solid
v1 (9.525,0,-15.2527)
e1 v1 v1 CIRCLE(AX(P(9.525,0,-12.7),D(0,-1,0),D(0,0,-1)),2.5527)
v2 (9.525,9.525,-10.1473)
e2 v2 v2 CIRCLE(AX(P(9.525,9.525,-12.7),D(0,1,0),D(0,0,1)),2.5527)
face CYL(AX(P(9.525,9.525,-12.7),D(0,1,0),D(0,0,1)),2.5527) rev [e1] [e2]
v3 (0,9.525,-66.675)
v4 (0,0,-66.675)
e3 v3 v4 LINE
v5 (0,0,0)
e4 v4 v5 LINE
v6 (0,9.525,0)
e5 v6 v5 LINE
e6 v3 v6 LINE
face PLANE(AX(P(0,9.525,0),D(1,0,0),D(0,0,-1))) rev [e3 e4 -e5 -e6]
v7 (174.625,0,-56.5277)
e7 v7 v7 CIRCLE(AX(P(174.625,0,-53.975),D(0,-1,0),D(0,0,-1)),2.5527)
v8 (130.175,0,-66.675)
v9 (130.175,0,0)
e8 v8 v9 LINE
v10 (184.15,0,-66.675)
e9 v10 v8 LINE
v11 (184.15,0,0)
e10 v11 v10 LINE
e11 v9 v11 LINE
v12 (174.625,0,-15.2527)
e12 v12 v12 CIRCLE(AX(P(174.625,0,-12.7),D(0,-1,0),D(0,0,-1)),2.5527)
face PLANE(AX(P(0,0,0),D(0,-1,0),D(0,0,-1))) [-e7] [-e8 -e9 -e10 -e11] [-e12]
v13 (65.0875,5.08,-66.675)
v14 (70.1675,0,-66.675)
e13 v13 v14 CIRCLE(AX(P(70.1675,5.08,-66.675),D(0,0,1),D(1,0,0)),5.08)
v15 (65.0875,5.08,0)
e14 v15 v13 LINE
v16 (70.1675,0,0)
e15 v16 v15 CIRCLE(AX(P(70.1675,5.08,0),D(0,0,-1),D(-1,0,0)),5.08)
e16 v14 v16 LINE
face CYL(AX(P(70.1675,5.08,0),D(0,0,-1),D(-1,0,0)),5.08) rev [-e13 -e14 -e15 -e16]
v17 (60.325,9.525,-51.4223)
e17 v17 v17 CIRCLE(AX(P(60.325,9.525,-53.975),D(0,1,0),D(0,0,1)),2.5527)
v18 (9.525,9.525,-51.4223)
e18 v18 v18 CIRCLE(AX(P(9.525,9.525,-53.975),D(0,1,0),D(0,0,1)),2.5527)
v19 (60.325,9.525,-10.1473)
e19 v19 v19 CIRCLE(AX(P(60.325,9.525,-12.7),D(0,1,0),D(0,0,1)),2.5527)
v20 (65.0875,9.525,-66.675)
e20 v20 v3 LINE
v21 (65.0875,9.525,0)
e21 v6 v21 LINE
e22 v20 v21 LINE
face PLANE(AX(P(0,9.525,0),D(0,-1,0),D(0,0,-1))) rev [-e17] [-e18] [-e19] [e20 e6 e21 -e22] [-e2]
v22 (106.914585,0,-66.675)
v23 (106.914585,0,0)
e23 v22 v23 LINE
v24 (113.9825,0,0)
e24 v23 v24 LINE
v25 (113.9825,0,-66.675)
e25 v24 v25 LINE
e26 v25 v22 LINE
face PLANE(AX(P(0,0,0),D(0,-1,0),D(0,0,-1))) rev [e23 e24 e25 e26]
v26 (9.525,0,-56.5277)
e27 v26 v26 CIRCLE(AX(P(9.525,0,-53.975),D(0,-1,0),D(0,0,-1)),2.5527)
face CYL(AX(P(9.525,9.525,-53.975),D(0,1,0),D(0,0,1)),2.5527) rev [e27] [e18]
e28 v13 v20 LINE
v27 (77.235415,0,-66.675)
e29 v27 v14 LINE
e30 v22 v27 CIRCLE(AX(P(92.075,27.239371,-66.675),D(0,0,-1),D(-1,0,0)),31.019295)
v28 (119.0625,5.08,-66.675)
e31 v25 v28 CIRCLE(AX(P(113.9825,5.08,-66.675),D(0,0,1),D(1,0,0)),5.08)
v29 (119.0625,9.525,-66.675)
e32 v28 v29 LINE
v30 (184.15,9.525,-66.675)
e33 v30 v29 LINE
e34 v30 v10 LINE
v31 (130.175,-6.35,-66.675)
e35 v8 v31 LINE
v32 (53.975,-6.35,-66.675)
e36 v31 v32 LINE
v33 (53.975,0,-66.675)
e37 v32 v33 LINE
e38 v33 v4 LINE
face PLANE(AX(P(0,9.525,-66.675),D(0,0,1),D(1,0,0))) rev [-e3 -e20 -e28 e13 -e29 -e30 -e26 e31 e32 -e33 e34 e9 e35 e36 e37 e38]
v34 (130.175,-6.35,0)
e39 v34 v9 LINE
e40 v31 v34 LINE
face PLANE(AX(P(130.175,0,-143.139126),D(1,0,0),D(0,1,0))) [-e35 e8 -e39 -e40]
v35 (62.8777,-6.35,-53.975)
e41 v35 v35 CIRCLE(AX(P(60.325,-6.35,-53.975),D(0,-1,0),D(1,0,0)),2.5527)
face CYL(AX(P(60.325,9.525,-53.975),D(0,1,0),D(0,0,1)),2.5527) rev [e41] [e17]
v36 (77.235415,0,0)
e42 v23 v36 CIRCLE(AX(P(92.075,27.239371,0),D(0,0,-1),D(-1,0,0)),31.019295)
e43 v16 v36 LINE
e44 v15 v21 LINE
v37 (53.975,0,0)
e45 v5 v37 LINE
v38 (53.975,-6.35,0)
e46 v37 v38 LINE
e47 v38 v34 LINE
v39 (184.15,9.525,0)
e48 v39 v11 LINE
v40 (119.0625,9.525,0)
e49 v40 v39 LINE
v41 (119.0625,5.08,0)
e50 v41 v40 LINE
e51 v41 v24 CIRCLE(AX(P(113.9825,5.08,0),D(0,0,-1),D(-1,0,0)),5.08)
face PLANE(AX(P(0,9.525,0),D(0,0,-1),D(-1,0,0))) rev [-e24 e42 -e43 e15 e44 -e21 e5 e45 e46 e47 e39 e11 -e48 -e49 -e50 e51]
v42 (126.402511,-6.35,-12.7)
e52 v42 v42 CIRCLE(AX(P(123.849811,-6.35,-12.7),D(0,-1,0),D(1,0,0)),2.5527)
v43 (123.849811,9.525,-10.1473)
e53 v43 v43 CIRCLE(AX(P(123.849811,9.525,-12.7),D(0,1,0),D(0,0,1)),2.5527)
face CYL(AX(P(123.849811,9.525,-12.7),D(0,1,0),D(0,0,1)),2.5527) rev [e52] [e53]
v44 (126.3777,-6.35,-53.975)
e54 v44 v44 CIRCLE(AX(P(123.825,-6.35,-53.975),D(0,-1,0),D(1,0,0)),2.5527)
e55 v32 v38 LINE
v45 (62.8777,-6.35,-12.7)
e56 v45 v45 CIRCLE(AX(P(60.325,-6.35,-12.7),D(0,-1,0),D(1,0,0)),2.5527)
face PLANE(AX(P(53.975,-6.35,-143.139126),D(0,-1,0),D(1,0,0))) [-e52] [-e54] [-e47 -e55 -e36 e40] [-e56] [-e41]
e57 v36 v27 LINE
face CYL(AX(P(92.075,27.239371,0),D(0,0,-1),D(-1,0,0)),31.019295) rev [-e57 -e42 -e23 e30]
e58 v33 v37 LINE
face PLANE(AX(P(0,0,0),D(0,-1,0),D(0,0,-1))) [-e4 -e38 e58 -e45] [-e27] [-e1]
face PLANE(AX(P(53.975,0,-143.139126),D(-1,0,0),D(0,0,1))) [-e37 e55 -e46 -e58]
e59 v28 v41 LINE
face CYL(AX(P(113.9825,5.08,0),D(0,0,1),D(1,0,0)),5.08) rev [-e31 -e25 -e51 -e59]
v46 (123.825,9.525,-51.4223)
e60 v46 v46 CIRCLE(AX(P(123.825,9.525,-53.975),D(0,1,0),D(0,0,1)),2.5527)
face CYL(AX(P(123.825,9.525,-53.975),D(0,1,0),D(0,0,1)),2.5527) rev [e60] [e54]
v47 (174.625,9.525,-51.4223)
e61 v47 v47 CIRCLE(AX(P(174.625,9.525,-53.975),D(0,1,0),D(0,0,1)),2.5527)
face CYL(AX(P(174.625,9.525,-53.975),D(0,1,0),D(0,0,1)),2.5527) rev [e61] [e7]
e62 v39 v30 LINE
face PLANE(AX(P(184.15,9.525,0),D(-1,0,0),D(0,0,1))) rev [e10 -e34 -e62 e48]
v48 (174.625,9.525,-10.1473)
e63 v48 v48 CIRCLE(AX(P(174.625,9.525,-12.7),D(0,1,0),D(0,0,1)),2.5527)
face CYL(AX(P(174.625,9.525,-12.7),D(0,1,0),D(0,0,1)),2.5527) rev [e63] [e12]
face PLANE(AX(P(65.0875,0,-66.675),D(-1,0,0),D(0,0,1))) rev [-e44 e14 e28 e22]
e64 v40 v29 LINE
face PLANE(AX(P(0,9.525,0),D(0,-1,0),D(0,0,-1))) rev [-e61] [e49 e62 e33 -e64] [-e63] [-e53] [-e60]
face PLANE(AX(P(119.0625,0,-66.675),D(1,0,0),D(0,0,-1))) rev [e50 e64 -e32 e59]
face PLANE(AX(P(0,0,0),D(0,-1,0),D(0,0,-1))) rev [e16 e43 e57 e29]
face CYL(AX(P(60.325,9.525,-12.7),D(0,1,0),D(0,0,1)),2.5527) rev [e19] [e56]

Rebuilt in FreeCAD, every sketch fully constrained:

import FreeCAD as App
import Part
import Sketcher
from FreeCAD import Vector
Q = App.Units.Quantity


def edges_at(feature, points):
    """Names of the edges that pass closest to the given points."""
    edges = feature.Shape.Edges
    near = lambda p: min(range(len(edges)), key=lambda i: edges[i].distToShape(Part.Vertex(*p))[0])
    return sorted({f"Edge{near(p) + 1}" for p in points})

doc = App.newDocument("Part")
body = doc.addObject("PartDesign::Body", "Body")

sketch1 = body.newObject("Sketcher::SketchObject", "Sketch")
sketch1.AttachmentSupport = (doc.getObject("XZ_Plane"), [""])
sketch1.MapMode = "FlatFace"
sketch1.addGeometry([
    Part.LineSegment(Vector(0, -67, 0), Vector(0, 0, 0)),
    Part.LineSegment(Vector(0, 0, 0), Vector(184, 0, 0)),
    Part.LineSegment(Vector(184, 0, 0), Vector(184, -67, 0)),
    Part.LineSegment(Vector(184, -67, 0), Vector(0, -67, 0)),
], False)
sketch1.addConstraint([
    Sketcher.Constraint("Coincident", 0, 2, 1, 1),
    Sketcher.Constraint("Coincident", 1, 2, 2, 1),
    Sketcher.Constraint("Coincident", 2, 2, 3, 1),
    Sketcher.Constraint("Coincident", 3, 2, 0, 1),
    Sketcher.Constraint("Vertical", 0),
    Sketcher.Constraint("Horizontal", 1),
    Sketcher.Constraint("Vertical", 2),
    Sketcher.Constraint("Horizontal", 3),
    Sketcher.Constraint("Coincident", 0, 2, -1, 1),
    Sketcher.Constraint("DistanceX", 1, 1, 1, 2, Q("7.25 in")),
    Sketcher.Constraint("DistanceY", 0, 1, 0, 2, Q("2.625 in")),
])
pad1 = body.newObject("PartDesign::Pad", "Pad")
pad1.Profile = sketch1
pad1.Length = Q("0.375 in")
pad1.Reversed = True

sketch2 = body.newObject("Sketcher::SketchObject", "Sketch001")
sketch2.AttachmentSupport = (doc.getObject("XY_Plane"), [""])
sketch2.MapMode = "FlatFace"
sketch2.addGeometry([
    Part.LineSegment(Vector(54, 0, 0), Vector(54, -6, 0)),
    Part.LineSegment(Vector(54, -6, 0), Vector(130, -6, 0)),
    Part.LineSegment(Vector(130, -6, 0), Vector(130, 0, 0)),
    Part.LineSegment(Vector(130, 0, 0), Vector(54, 0, 0)),
], False)
sketch2.addConstraint([
    Sketcher.Constraint("Coincident", 0, 2, 1, 1),
    Sketcher.Constraint("Coincident", 1, 2, 2, 1),
    Sketcher.Constraint("Coincident", 2, 2, 3, 1),
    Sketcher.Constraint("Coincident", 3, 2, 0, 1),
    Sketcher.Constraint("Vertical", 0),
    Sketcher.Constraint("Horizontal", 1),
    Sketcher.Constraint("Vertical", 2),
    Sketcher.Constraint("Horizontal", 3),
    Sketcher.Constraint("PointOnObject", 2, 2, -1),
    Sketcher.Constraint("DistanceX", 1, 1, 1, 2, Q("3 in")),
    Sketcher.Constraint("DistanceY", 0, 2, 0, 1, Q("0.25 in")),
    Sketcher.Constraint("DistanceX", -1, 1, 0, 2, Q("2.125 in")),
])
pad2 = body.newObject("PartDesign::Pad", "Pad001")
pad2.Profile = sketch2
pad2.Length = Q("2.625 in")
pad2.Reversed = True

sketch3 = body.newObject("Sketcher::SketchObject", "Sketch002")
sketch3.AttachmentSupport = (doc.getObject("XZ_Plane"), [""])
sketch3.MapMode = "FlatFace"
sketch3.AttachmentOffset = App.Placement(Vector(0, 0, -0.375 * 25.4), App.Rotation())
sketch3.addGeometry([
    Part.LineSegment(Vector(65, -67, 0), Vector(65, 0, 0)),
    Part.LineSegment(Vector(65, 0, 0), Vector(119, 0, 0)),
    Part.LineSegment(Vector(119, 0, 0), Vector(119, -67, 0)),
    Part.LineSegment(Vector(119, -67, 0), Vector(65, -67, 0)),
], False)
sketch3.addConstraint([
    Sketcher.Constraint("Coincident", 0, 2, 1, 1),
    Sketcher.Constraint("Coincident", 1, 2, 2, 1),
    Sketcher.Constraint("Coincident", 2, 2, 3, 1),
    Sketcher.Constraint("Coincident", 3, 2, 0, 1),
    Sketcher.Constraint("Vertical", 0),
    Sketcher.Constraint("Horizontal", 1),
    Sketcher.Constraint("Vertical", 2),
    Sketcher.Constraint("Horizontal", 3),
    Sketcher.Constraint("PointOnObject", 0, 2, -1),
    Sketcher.Constraint("DistanceX", 1, 1, 1, 2, Q("2.125 in")),
    Sketcher.Constraint("DistanceY", 0, 1, 0, 2, Q("2.625 in")),
    Sketcher.Constraint("DistanceX", -1, 1, 0, 2, Q("2.5625 in")),
])
pocket1 = body.newObject("PartDesign::Pocket", "Pocket")
pocket1.Profile = sketch3
pocket1.Length = Q("0.375 in")
pocket1.Reversed = True

sketch4 = body.newObject("Sketcher::SketchObject", "Sketch003")
sketch4.AttachmentSupport = (doc.getObject("XZ_Plane"), [""])
sketch4.MapMode = "FlatFace"
sketch4.AttachmentOffset = App.Placement(Vector(0, 0, -0.375 * 25.4), App.Rotation())
sketch4.addGeometry([
    Part.Circle(Vector(9.5, -54, 0), Vector(0, 0, 1), 2.6),
    Part.Circle(Vector(9.5, -12.7, 0), Vector(0, 0, 1), 2.6),
    Part.Circle(Vector(60.3, -12.7, 0), Vector(0, 0, 1), 2.6),
    Part.Circle(Vector(60.3, -54, 0), Vector(0, 0, 1), 2.6),
    Part.Circle(Vector(123.8, -54, 0), Vector(0, 0, 1), 2.6),
    Part.Circle(Vector(123.8, -12.7, 0), Vector(0, 0, 1), 2.6),
    Part.Circle(Vector(174.6, -12.7, 0), Vector(0, 0, 1), 2.6),
    Part.Circle(Vector(174.6, -54, 0), Vector(0, 0, 1), 2.6),
], False)
sketch4.addConstraint([
    Sketcher.Constraint("Equal", 0, 1),
    Sketcher.Constraint("Equal", 1, 2),
    Sketcher.Constraint("Equal", 2, 3),
    Sketcher.Constraint("Equal", 3, 4),
    Sketcher.Constraint("Equal", 4, 5),
    Sketcher.Constraint("Equal", 5, 6),
    Sketcher.Constraint("Equal", 6, 7),
    Sketcher.Constraint("Horizontal", 1, 3, 2, 3),
    Sketcher.Constraint("Horizontal", 0, 3, 3, 3),
    Sketcher.Constraint("Horizontal", 3, 3, 4, 3),
    Sketcher.Constraint("Horizontal", 2, 3, 5, 3),
    Sketcher.Constraint("Horizontal", 5, 3, 6, 3),
    Sketcher.Constraint("Horizontal", 4, 3, 7, 3),
    Sketcher.Constraint("Vertical", 0, 3, 1, 3),
    Sketcher.Constraint("Vertical", 2, 3, 3, 3),
    Sketcher.Constraint("Vertical", 6, 3, 7, 3),
    Sketcher.Constraint("Diameter", 0, Q("0.201 in")),
    Sketcher.Constraint("DistanceX", 1, 3, 2, 3, Q("2 in")),
    Sketcher.Constraint("DistanceX", 4, 3, 6, 3, Q("2 in")),
    Sketcher.Constraint("DistanceY", 1, 3, -1, 1, Q("0.5 in")),
    Sketcher.Constraint("DistanceX", 3, 3, 4, 3, Q("2.5 in")),
    Sketcher.Constraint("DistanceX", -1, 1, 0, 3, Q("0.375 in")),
    Sketcher.Constraint("DistanceY", 0, 3, -1, 1, Q("2.125 in")),
    Sketcher.Constraint("DistanceX", -1, 1, 5, 3, Q("123.849811 mm")),
])
doc.recompute()
hole = body.newObject("PartDesign::Hole", "Hole")
hole.Profile = sketch4
hole.ThreadType = "None"
hole.Diameter = Q("0.201 in")
hole.DepthType = "ThroughAll"
hole.Reversed = True

sketch5 = body.newObject("Sketcher::SketchObject", "Sketch004")
sketch5.AttachmentSupport = (doc.getObject("XY_Plane"), [""])
sketch5.MapMode = "FlatFace"
sketch5.AttachmentOffset = App.Placement(Vector(0, 0, -2.625 * 25.4), App.Rotation())
sketch5.addGeometry(Part.Circle(Vector(92, 27, 0), Vector(0, 0, 1), 31), False)
sketch5.addConstraint([
    Sketcher.Constraint("Diameter", 0, Q("62.038589 mm")),
    Sketcher.Constraint("DistanceX", -1, 1, 0, 3, Q("3.625 in")),
    Sketcher.Constraint("DistanceY", -1, 1, 0, 3, Q("27.239371 mm")),
])
pocket2 = body.newObject("PartDesign::Pocket", "Pocket001")
pocket2.Profile = sketch5
pocket2.Type = "ThroughAll"
pocket2.Reversed = True
doc.recompute()

fillet = body.newObject("PartDesign::Fillet", "Fillet")
fillet.Base = (pocket2, edges_at(pocket2, [(65.088, 0, -33.337)]))
fillet.Radius = Q("0.2 in")
doc.recompute()

fillet2 = body.newObject("PartDesign::Fillet", "Fillet001")
fillet2.Base = (fillet, edges_at(fillet, [(119.062, 0, -33.337)]))
fillet2.Radius = Q("0.2 in")

doc.recompute()
